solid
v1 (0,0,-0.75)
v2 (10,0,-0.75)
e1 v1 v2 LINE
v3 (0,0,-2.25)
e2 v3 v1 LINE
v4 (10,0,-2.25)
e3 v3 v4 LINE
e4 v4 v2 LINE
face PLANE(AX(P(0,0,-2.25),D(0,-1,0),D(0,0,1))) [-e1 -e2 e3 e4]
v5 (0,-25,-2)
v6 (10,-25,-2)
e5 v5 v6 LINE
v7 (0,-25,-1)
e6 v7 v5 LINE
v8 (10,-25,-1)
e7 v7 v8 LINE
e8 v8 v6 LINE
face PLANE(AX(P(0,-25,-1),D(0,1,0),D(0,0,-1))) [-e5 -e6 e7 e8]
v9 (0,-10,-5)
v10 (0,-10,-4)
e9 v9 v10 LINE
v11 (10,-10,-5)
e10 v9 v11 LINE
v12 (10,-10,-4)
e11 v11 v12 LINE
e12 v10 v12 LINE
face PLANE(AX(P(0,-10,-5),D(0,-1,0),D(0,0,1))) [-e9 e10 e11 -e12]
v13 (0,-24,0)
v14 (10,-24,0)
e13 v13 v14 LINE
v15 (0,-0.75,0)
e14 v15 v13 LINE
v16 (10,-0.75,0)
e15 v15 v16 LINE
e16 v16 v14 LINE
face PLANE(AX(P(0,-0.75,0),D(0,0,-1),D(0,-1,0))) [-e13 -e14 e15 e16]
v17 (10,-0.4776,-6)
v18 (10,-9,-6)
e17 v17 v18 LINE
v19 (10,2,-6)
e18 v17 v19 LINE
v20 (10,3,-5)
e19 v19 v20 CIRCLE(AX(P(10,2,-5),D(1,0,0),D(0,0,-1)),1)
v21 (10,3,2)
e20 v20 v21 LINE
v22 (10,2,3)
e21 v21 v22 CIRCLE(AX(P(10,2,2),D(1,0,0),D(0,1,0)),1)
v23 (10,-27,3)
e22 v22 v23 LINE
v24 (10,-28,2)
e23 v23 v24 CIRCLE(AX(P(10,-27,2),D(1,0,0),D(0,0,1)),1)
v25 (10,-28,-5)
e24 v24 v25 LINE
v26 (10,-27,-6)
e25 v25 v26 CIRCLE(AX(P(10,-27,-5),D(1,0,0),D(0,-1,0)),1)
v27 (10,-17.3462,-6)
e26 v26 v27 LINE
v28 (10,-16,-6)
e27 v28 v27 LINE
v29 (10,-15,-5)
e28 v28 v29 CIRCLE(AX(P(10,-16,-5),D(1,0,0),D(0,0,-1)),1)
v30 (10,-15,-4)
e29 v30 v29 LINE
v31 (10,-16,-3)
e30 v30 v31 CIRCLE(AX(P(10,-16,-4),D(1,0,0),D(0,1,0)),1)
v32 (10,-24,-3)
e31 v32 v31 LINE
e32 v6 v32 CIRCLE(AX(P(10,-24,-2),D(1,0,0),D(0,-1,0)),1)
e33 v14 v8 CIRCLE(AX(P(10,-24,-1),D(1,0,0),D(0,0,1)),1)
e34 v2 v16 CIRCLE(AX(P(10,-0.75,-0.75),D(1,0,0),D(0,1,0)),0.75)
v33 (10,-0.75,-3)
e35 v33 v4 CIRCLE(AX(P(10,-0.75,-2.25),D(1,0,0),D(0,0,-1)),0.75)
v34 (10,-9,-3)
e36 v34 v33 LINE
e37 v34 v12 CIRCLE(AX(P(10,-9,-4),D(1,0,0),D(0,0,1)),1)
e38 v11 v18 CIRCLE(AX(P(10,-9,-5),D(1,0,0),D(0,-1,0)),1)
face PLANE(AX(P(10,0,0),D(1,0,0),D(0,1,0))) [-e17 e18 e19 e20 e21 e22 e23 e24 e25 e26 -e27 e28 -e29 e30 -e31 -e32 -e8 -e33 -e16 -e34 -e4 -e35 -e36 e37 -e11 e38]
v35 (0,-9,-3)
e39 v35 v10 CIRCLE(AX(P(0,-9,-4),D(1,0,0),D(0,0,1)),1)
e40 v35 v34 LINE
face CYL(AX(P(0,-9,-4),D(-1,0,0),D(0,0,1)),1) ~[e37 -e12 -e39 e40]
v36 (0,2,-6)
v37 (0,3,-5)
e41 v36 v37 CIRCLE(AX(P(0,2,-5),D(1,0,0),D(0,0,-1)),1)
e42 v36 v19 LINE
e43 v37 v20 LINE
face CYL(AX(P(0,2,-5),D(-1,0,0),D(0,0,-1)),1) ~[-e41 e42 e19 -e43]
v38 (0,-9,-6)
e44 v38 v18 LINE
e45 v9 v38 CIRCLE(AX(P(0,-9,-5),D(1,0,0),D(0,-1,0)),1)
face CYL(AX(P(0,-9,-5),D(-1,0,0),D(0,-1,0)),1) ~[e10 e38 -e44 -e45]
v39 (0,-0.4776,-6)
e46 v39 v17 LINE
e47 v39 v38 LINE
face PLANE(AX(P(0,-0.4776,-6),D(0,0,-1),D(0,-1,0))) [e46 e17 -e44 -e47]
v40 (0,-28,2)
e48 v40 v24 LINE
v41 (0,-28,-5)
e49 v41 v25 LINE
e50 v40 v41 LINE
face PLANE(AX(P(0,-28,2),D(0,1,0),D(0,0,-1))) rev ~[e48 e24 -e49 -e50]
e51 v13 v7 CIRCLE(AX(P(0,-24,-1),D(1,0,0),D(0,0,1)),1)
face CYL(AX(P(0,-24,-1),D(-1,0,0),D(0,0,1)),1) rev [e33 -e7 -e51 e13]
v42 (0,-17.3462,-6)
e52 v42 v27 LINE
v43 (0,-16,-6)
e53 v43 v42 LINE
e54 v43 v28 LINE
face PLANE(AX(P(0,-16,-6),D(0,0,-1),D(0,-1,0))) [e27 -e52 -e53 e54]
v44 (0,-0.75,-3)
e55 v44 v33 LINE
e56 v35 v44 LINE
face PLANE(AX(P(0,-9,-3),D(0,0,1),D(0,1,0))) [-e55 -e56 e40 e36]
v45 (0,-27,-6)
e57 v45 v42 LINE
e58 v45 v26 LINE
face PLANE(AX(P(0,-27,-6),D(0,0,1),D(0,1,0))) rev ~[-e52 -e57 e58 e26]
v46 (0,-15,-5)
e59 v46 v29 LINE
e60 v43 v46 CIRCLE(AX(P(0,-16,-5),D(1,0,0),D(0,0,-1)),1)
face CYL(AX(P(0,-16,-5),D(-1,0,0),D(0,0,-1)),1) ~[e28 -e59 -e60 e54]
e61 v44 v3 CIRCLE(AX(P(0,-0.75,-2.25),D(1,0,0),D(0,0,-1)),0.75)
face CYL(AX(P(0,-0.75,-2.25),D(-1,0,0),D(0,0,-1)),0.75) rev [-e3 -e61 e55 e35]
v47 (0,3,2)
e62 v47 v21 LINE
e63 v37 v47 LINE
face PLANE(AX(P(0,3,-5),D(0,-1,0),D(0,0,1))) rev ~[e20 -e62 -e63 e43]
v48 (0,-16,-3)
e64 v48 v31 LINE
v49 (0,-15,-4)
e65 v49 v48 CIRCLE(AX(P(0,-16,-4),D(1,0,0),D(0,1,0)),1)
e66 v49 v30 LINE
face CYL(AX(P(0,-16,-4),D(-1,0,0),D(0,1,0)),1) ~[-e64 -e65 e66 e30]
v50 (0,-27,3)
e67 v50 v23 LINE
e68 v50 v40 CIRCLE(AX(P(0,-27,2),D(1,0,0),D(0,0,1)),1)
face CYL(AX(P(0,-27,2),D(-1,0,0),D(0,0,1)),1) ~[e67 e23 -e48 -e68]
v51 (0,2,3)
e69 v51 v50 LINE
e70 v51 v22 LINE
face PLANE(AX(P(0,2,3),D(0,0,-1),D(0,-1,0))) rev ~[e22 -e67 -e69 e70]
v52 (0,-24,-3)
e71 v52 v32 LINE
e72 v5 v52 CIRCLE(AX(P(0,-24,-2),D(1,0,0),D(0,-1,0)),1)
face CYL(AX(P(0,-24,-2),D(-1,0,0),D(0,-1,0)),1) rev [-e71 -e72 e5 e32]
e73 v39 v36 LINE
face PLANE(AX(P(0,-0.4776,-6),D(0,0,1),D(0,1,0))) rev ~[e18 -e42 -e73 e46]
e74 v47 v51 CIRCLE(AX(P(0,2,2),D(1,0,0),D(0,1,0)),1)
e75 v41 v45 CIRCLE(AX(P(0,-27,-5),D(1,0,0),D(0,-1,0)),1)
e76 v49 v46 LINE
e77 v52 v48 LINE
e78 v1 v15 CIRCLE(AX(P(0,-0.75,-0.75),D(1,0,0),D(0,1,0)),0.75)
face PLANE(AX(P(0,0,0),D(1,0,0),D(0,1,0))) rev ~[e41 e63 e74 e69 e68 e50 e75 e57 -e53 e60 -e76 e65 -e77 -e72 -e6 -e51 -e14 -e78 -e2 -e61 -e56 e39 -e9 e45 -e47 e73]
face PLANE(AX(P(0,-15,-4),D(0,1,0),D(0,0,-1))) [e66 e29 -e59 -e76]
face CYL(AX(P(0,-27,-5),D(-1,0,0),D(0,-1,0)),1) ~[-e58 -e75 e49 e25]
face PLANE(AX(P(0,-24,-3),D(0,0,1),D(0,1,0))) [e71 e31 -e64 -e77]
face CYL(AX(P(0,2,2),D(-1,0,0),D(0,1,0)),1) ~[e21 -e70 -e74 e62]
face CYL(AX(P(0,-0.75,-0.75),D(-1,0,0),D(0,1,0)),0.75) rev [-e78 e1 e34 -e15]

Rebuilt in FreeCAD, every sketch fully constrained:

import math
import FreeCAD as App
import Part
import Sketcher
from FreeCAD import Vector
Q = App.Units.Quantity

doc = App.newDocument("Part")
body = doc.addObject("PartDesign::Body", "Body")

# Sketch on YZ plane
sketch1 = body.newObject("Sketcher::SketchObject", "Sketch")
sketch1.AttachmentSupport = (doc.getObject("YZ_Plane"), [""])
sketch1.MapMode = "FlatFace"
sketch1.addGeometry([
    Part.LineSegment(Vector(-24, 0, 0), Vector(-0.75, 0, 0)),  # 0
    Part.ArcOfCircle(Part.Circle(Vector(-0.75, -0.75, 0), Vector(0, 0, 1), 0.75), math.radians(0), math.radians(90)),  # 1
    Part.LineSegment(Vector(0, -0.75, 0), Vector(0, -2.25, 0)),  # 2
    Part.ArcOfCircle(Part.Circle(Vector(-0.75, -2.25, 0), Vector(0, 0, 1), 0.75), math.radians(-90), math.radians(0)),  # 3
    Part.LineSegment(Vector(-0.75, -3, 0), Vector(-9, -3, 0)),  # 4
    Part.ArcOfCircle(Part.Circle(Vector(-9, -4, 0), Vector(0, 0, 1), 1), math.radians(90), math.radians(180)),  # 5
    Part.LineSegment(Vector(-10, -4, 0), Vector(-10, -5, 0)),  # 6
    Part.ArcOfCircle(Part.Circle(Vector(-9, -5, 0), Vector(0, 0, 1), 1), math.radians(180), math.radians(270)),  # 7
    Part.LineSegment(Vector(-9, -6, 0), Vector(2, -6, 0)),  # 8
    Part.ArcOfCircle(Part.Circle(Vector(2, -5, 0), Vector(0, 0, 1), 1), math.radians(-90), math.radians(0)),  # 9
    Part.LineSegment(Vector(3, -5, 0), Vector(3, 2, 0)),  # 10
    Part.ArcOfCircle(Part.Circle(Vector(2, 2, 0), Vector(0, 0, 1), 1), math.radians(0), math.radians(90)),  # 11
    Part.LineSegment(Vector(2, 3, 0), Vector(-27, 3, 0)),  # 12
    Part.ArcOfCircle(Part.Circle(Vector(-27, 2, 0), Vector(0, 0, 1), 1), math.radians(90), math.radians(180)),  # 13
    Part.LineSegment(Vector(-28, 2, 0), Vector(-28, -5, 0)),  # 14
    Part.ArcOfCircle(Part.Circle(Vector(-27, -5, 0), Vector(0, 0, 1), 1), math.radians(180), math.radians(270)),  # 15
    Part.LineSegment(Vector(-27, -6, 0), Vector(-16, -6, 0)),  # 16
    Part.ArcOfCircle(Part.Circle(Vector(-16, -5, 0), Vector(0, 0, 1), 1), math.radians(-90), math.radians(0)),  # 17
    Part.LineSegment(Vector(-15, -5, 0), Vector(-15, -4, 0)),  # 18
    Part.ArcOfCircle(Part.Circle(Vector(-16, -4, 0), Vector(0, 0, 1), 1), math.radians(0), math.radians(90)),  # 19
    Part.LineSegment(Vector(-16, -3, 0), Vector(-24, -3, 0)),  # 20
    Part.ArcOfCircle(Part.Circle(Vector(-24, -2, 0), Vector(0, 0, 1), 1), math.radians(180), math.radians(270)),  # 21
    Part.LineSegment(Vector(-25, -2, 0), Vector(-25, -1, 0)),  # 22
    Part.ArcOfCircle(Part.Circle(Vector(-24, -1, 0), Vector(0, 0, 1), 1), math.radians(90), math.radians(180)),  # 23
], False)
sketch1.addConstraint([
    Sketcher.Constraint("Tangent", 0, 2, 1, 2),
    Sketcher.Constraint("Tangent", 1, 1, 2, 1),
    Sketcher.Constraint("Tangent", 2, 2, 3, 2),
    Sketcher.Constraint("Tangent", 3, 1, 4, 1),
    Sketcher.Constraint("Tangent", 4, 2, 5, 1),
    Sketcher.Constraint("Tangent", 5, 2, 6, 1),
    Sketcher.Constraint("Tangent", 6, 2, 7, 1),
    Sketcher.Constraint("Tangent", 7, 2, 8, 1),
    Sketcher.Constraint("Tangent", 8, 2, 9, 1),
    Sketcher.Constraint("Tangent", 9, 2, 10, 1),
    Sketcher.Constraint("Tangent", 10, 2, 11, 1),
    Sketcher.Constraint("Tangent", 11, 2, 12, 1),
    Sketcher.Constraint("Tangent", 12, 2, 13, 1),
    Sketcher.Constraint("Tangent", 13, 2, 14, 1),
    Sketcher.Constraint("Tangent", 14, 2, 15, 1),
    Sketcher.Constraint("Tangent", 15, 2, 16, 1),
    Sketcher.Constraint("Tangent", 16, 2, 17, 1),
    Sketcher.Constraint("Tangent", 17, 2, 18, 1),
    Sketcher.Constraint("Tangent", 18, 2, 19, 1),
    Sketcher.Constraint("Tangent", 19, 2, 20, 1),
    Sketcher.Constraint("Tangent", 20, 2, 21, 2),
    Sketcher.Constraint("Tangent", 21, 1, 22, 1),
    Sketcher.Constraint("Tangent", 22, 2, 23, 2),
    Sketcher.Constraint("Tangent", 23, 1, 0, 1),
    Sketcher.Constraint("Horizontal", 0),
    Sketcher.Constraint("Vertical", 2),
    Sketcher.Constraint("Horizontal", 4),
    Sketcher.Constraint("Vertical", 6),
    Sketcher.Constraint("Horizontal", 8),
    Sketcher.Constraint("Vertical", 10),
    Sketcher.Constraint("Horizontal", 12),
    Sketcher.Constraint("Vertical", 14),
    Sketcher.Constraint("Horizontal", 16),
    Sketcher.Constraint("Vertical", 18),
    Sketcher.Constraint("Horizontal", 20),
    Sketcher.Constraint("Vertical", 22),
    Sketcher.Constraint("Equal", 1, 3),
    Sketcher.Constraint("Equal", 5, 7),
    Sketcher.Constraint("Equal", 7, 9),
    Sketcher.Constraint("Equal", 9, 11),
    Sketcher.Constraint("Equal", 11, 13),
    Sketcher.Constraint("Equal", 13, 15),
    Sketcher.Constraint("Equal", 15, 17),
    Sketcher.Constraint("Equal", 17, 19),
    Sketcher.Constraint("Equal", 19, 21),
    Sketcher.Constraint("Equal", 21, 23),
    Sketcher.Constraint("PointOnObject", 0, 2, -1),
    Sketcher.Constraint("PointOnObject", 1, 1, -2),
    Sketcher.Constraint("Horizontal", 9, 3, 15, 3),
    Sketcher.Constraint("Horizontal", 5, 3, 19, 3),
    Sketcher.Constraint("Equal", 8, 16),
    Sketcher.Constraint("Equal", 18, 22),
    Sketcher.Constraint("Radius", 5, Q("1 mm")),
    Sketcher.Constraint("DistanceY", 6, 2, 6, 1, Q("1 mm")),
    Sketcher.Constraint("Radius", 1, Q("0.75 mm")),
    Sketcher.Constraint("DistanceX", -1, 1, 9, 2, Q("3 mm")),
    Sketcher.Constraint("DistanceY", -1, 1, 11, 2, Q("3 mm")),
    Sketcher.Constraint("DistanceX", 21, 1, -1, 1, Q("25 mm")),
    Sketcher.Constraint("DistanceX", 15, 3, 21, 3, Q("3 mm")),
    Sketcher.Constraint("DistanceX", 17, 2, 6, 2, Q("5 mm")),
])
pad1 = body.newObject("PartDesign::Pad", "Pad")
pad1.Profile = sketch1
pad1.Length = 10

doc.recompute()
